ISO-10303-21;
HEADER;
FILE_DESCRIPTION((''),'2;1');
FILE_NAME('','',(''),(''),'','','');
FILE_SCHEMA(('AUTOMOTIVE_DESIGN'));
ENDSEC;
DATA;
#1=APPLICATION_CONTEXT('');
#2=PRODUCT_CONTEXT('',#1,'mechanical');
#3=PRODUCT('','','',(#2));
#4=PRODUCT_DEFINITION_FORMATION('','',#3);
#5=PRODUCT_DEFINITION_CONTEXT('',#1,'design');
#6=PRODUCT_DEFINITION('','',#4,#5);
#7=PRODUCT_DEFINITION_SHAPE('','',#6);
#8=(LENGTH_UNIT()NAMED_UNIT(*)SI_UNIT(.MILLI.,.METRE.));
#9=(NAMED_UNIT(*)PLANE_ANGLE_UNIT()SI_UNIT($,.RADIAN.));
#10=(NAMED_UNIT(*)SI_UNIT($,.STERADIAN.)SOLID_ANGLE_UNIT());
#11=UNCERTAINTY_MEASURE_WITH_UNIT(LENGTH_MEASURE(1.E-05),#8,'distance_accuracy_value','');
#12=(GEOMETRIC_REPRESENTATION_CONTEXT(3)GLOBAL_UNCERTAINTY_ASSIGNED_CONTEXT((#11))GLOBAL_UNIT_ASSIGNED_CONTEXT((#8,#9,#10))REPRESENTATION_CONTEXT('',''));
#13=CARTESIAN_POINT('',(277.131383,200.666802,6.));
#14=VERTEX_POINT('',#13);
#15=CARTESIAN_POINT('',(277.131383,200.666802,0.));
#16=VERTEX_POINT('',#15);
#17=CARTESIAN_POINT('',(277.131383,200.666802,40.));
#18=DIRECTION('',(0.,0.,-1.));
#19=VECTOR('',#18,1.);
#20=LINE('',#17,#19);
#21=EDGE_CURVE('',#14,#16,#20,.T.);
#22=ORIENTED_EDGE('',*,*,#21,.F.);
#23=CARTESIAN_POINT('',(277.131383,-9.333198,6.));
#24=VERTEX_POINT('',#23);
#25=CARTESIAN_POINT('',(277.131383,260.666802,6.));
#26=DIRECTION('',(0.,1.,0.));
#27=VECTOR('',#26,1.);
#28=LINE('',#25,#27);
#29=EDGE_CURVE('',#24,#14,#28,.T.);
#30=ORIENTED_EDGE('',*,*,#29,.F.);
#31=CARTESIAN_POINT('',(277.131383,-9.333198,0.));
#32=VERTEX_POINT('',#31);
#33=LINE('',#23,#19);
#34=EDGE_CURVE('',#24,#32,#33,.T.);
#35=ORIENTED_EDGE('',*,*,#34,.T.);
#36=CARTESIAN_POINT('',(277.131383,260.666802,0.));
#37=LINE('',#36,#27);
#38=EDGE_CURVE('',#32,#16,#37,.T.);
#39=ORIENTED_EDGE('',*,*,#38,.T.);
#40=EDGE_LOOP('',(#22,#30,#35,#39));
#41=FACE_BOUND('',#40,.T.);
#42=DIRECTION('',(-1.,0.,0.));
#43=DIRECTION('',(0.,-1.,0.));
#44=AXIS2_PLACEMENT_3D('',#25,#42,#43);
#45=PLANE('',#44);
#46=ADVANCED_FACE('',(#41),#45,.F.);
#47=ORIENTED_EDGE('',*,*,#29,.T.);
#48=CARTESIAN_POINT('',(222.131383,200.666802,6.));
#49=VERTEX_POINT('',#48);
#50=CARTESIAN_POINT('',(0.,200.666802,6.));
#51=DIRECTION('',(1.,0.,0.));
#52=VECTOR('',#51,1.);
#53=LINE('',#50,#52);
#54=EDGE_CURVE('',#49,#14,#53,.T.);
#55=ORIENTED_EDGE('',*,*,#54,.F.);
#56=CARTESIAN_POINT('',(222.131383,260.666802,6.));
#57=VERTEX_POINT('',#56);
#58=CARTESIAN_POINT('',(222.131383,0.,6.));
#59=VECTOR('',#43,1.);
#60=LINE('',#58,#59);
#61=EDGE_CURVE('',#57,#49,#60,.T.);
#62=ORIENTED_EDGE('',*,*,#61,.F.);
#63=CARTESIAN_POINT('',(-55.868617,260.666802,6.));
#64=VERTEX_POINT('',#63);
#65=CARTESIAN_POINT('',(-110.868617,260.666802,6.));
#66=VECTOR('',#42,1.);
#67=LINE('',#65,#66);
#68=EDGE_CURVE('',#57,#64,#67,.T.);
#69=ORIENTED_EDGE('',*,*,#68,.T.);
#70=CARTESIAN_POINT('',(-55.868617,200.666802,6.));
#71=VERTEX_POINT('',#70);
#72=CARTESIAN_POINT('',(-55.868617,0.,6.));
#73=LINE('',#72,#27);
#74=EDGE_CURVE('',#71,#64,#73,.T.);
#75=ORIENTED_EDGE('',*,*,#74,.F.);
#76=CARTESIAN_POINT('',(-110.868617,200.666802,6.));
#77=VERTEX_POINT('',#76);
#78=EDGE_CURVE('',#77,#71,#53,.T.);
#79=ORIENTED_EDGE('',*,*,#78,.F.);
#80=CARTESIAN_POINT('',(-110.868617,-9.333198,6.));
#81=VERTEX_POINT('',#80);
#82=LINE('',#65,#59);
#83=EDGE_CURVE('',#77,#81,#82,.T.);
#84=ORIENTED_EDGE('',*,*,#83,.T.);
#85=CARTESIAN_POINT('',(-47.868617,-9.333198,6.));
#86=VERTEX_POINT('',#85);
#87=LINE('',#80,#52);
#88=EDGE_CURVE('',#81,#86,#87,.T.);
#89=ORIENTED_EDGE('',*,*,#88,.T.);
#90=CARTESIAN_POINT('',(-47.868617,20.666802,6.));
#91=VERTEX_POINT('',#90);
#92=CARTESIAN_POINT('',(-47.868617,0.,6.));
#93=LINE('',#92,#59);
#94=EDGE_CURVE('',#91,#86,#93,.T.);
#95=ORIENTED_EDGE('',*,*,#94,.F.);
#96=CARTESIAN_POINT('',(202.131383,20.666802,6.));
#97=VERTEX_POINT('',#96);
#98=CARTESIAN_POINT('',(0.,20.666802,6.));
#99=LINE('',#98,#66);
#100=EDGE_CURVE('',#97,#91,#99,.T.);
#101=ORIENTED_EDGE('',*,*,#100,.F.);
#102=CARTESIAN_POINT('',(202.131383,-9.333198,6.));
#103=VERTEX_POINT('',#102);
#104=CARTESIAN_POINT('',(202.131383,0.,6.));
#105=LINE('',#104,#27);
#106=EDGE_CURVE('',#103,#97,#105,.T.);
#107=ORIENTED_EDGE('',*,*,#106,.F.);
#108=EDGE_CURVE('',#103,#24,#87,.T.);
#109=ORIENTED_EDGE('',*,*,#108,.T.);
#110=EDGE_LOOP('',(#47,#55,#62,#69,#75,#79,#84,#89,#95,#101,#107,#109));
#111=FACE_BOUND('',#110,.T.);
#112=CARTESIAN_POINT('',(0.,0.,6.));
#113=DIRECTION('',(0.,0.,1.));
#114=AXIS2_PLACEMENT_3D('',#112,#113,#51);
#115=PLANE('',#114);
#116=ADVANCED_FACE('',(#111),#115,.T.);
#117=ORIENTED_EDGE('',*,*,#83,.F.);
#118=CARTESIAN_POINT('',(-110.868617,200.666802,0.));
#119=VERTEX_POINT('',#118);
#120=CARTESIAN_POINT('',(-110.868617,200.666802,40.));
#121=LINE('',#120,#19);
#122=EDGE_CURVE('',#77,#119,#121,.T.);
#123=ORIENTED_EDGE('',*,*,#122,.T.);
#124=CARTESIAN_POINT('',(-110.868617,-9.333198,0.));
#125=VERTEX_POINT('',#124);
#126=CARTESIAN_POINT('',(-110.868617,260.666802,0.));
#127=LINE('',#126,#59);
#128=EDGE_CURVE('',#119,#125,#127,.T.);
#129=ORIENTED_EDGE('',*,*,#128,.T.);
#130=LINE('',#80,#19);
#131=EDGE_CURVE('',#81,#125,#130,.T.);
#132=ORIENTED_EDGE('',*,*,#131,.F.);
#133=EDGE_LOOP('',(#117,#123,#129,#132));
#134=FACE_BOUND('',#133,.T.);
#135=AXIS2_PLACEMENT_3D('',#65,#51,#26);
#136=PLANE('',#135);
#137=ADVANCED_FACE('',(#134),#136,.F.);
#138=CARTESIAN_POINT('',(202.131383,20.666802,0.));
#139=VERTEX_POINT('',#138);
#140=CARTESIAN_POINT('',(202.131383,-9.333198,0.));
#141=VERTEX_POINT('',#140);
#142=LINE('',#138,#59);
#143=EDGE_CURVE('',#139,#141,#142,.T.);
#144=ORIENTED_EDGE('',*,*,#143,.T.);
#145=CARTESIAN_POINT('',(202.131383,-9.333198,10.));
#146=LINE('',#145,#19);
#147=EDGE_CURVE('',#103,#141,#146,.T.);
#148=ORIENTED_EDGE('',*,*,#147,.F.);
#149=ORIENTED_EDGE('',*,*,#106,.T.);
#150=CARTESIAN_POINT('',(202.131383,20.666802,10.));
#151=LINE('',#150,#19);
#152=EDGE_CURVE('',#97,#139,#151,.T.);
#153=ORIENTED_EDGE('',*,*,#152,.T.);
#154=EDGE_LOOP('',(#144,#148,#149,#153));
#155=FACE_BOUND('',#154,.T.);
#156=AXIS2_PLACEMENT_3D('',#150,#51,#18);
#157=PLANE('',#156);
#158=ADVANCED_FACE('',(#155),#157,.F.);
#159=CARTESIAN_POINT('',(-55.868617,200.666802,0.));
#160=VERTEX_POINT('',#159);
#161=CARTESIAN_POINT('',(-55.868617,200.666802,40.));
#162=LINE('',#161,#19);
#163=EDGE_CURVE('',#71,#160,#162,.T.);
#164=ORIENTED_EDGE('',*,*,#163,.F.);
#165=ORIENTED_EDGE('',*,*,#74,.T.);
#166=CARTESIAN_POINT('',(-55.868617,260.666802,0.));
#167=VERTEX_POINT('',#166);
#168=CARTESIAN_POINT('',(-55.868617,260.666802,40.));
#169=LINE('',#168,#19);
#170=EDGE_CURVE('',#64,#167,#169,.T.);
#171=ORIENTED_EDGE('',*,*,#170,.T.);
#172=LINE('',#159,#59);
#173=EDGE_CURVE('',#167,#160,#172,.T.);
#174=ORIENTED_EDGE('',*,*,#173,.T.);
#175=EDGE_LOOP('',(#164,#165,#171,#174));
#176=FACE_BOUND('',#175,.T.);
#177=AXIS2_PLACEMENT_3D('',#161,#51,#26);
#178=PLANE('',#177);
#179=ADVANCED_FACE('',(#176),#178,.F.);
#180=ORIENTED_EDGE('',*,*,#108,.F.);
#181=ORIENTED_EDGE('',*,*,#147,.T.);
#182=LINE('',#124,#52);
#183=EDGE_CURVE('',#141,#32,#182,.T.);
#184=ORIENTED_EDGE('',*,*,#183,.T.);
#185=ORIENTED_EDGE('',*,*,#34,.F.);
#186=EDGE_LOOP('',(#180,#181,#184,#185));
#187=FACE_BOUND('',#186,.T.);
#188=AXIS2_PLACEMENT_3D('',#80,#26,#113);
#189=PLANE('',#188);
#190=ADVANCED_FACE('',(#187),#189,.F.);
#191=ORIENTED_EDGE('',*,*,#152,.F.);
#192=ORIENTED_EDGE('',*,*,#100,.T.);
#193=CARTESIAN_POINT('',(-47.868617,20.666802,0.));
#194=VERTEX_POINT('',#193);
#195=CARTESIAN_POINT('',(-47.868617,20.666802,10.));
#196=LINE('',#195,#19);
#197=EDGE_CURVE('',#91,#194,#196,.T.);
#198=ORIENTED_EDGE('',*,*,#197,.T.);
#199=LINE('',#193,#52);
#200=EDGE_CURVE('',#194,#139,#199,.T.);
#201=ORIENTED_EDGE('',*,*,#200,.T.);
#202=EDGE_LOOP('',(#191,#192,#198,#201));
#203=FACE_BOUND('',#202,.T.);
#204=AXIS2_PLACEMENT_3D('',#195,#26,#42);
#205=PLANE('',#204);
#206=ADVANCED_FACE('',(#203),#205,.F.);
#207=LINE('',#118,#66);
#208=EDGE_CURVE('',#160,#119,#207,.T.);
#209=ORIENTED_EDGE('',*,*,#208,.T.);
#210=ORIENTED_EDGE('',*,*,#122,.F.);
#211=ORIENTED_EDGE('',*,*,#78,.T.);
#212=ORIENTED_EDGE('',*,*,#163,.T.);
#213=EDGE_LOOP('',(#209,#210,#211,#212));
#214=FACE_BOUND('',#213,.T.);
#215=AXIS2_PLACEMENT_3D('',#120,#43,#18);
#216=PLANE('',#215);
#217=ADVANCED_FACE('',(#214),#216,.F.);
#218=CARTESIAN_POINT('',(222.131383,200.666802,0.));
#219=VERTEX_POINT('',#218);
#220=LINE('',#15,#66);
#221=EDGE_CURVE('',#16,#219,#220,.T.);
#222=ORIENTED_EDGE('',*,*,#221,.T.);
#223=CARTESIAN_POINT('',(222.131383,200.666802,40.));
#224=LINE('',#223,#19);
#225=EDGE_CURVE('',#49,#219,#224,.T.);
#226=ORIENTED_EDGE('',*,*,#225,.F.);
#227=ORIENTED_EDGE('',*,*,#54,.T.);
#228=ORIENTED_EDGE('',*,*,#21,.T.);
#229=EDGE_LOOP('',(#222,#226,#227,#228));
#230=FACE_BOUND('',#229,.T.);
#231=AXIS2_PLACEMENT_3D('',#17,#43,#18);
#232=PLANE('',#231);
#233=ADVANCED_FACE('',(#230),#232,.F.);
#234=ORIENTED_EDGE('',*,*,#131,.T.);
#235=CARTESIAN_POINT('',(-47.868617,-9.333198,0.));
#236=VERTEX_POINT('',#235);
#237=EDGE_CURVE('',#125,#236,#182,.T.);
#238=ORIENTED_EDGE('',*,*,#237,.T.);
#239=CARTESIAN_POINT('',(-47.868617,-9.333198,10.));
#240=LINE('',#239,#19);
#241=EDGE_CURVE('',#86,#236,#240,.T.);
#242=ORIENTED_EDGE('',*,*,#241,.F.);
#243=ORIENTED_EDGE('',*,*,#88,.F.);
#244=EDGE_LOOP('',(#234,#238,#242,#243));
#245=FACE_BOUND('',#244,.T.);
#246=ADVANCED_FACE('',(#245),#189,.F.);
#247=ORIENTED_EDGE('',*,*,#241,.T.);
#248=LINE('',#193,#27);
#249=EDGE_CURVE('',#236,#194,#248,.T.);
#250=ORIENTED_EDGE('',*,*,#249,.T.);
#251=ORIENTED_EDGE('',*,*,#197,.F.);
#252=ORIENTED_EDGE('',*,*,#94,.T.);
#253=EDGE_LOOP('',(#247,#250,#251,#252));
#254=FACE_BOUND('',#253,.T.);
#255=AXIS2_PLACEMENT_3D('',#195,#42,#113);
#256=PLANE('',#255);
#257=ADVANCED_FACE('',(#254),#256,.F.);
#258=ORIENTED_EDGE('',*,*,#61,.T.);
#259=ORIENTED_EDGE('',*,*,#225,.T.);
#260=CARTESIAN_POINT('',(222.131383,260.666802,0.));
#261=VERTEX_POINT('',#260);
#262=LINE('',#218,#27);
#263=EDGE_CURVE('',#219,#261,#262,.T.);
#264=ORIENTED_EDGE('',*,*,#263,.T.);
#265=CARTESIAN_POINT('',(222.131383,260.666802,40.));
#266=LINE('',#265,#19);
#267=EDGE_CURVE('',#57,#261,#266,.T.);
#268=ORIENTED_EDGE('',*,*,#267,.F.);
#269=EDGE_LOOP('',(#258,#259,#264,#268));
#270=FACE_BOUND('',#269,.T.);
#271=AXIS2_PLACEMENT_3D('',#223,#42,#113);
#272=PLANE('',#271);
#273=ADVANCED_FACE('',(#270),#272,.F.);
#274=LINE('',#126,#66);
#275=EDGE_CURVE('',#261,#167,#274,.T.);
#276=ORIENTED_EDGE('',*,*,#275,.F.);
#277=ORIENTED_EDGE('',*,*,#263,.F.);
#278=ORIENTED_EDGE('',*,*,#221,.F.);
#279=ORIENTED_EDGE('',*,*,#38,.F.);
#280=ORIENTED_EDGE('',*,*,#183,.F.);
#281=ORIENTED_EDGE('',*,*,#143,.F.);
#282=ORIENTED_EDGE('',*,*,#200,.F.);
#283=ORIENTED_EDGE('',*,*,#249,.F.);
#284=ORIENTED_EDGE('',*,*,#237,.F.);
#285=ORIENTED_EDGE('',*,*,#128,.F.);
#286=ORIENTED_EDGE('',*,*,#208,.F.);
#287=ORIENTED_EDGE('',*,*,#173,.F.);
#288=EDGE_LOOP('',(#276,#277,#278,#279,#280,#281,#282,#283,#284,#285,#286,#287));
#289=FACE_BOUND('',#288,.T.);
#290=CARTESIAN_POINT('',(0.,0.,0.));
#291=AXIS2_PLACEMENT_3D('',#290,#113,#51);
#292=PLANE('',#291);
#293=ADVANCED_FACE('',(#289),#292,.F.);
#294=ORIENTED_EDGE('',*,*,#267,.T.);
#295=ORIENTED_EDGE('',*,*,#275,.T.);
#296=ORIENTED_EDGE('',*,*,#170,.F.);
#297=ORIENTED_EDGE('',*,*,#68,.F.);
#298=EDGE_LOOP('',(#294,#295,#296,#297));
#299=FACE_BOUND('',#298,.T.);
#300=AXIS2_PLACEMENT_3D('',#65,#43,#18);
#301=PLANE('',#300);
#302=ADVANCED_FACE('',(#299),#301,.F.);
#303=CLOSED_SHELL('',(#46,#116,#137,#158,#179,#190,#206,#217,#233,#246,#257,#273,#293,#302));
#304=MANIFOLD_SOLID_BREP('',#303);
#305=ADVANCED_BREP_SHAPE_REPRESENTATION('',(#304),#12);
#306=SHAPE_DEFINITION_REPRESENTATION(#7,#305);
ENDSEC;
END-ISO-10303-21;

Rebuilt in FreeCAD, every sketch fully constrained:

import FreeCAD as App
import Part
import Sketcher

V = App.Vector


def add_polygon(sketch, points):
    """Adds a closed chain of lines whose ends are joined by coincident constraints."""
    first, n = sketch.GeometryCount, len(points)
    for a, b in zip(points, points[1:] + points[:1]):
        sketch.addGeometry(Part.LineSegment(App.Vector(*a, 0), App.Vector(*b, 0)), False)
    for i in range(n):
        sketch.addConstraint(Sketcher.Constraint("Coincident", first + i, 2, first + (i + 1) % n, 1))

doc = App.newDocument("Part")
body = doc.addObject("PartDesign::Body", "Body")

# Sketch on XY plane
sketch1 = doc.addObject("Sketcher::SketchObject", "Sketch")
body.addObject(sketch1)
sketch1.AttachmentSupport = (doc.XY_Plane, [""])
sketch1.MapMode = "FlatFace"
add_polygon(sketch1, [(-111, 261), (-111, -9), (277, -9), (277, 261)])  # lines 0-3
sketch1.addConstraint(Sketcher.Constraint("Vertical", 0))
sketch1.addConstraint(Sketcher.Constraint("Horizontal", 1))
sketch1.addConstraint(Sketcher.Constraint("Vertical", 2))
sketch1.addConstraint(Sketcher.Constraint("Horizontal", 3))
sketch1.addConstraint(Sketcher.Constraint("DistanceX", 1, 1, 1, 2, 388.0))
sketch1.addConstraint(Sketcher.Constraint("DistanceY", 0, 2, 0, 1, 270.0))
sketch1.addConstraint(Sketcher.Constraint("DistanceX", 0, 2, -1, 1, 110.868617))
sketch1.addConstraint(Sketcher.Constraint("DistanceY", 0, 2, -1, 1, 9.333198))
pad1 = doc.addObject("PartDesign::Pad", "Pad")
body.addObject(pad1)
pad1.Profile = sketch1
pad1.Length = 6

# Sketch on XY plane
sketch2 = doc.addObject("Sketcher::SketchObject", "Sketch001")
body.addObject(sketch2)
sketch2.AttachmentSupport = (doc.XY_Plane, [""])
sketch2.MapMode = "FlatFace"
add_polygon(sketch2, [(277, 261), (277, 201), (222, 201), (222, 261)])  # lines 0-3
add_polygon(sketch2, [(-56, 261), (-56, 201), (-111, 201), (-111, 261)])  # lines 4-7
sketch2.addConstraint(Sketcher.Constraint("Vertical", 0))
sketch2.addConstraint(Sketcher.Constraint("Horizontal", 1))
sketch2.addConstraint(Sketcher.Constraint("Vertical", 2))
sketch2.addConstraint(Sketcher.Constraint("Horizontal", 3))
sketch2.addConstraint(Sketcher.Constraint("Vertical", 4))
sketch2.addConstraint(Sketcher.Constraint("Horizontal", 5))
sketch2.addConstraint(Sketcher.Constraint("Vertical", 6))
sketch2.addConstraint(Sketcher.Constraint("Horizontal", 7))
sketch2.addConstraint(Sketcher.Constraint("Horizontal", 1, 2, 4, 2))
sketch2.addConstraint(Sketcher.Constraint("Horizontal", 3, 2, 6, 2))
sketch2.addConstraint(Sketcher.Constraint("Equal", 3, 5))
sketch2.addConstraint(Sketcher.Constraint("DistanceX", 1, 2, 1, 1, 55.0))
sketch2.addConstraint(Sketcher.Constraint("DistanceY", 0, 2, 0, 1, 60.0))
sketch2.addConstraint(Sketcher.Constraint("DistanceX", 4, 2, 1, 2, 278.0))
sketch2.addConstraint(Sketcher.Constraint("DistanceX", -1, 1, 0, 2, 277.131383))
sketch2.addConstraint(Sketcher.Constraint("DistanceY", -1, 1, 0, 2, 200.666802))
pocket1 = doc.addObject("PartDesign::Pocket", "Pocket")
body.addObject(pocket1)
pocket1.Profile = sketch2
pocket1.Length = 40
pocket1.Reversed = True

# Sketch on XY plane
sketch3 = doc.addObject("Sketcher::SketchObject", "Sketch002")
body.addObject(sketch3)
sketch3.AttachmentSupport = (doc.XY_Plane, [""])
sketch3.MapMode = "FlatFace"
add_polygon(sketch3, [(202, 21), (202, -9), (-48, -9), (-48, 21)])  # lines 0-3
sketch3.addConstraint(Sketcher.Constraint("Vertical", 0))
sketch3.addConstraint(Sketcher.Constraint("Horizontal", 1))
sketch3.addConstraint(Sketcher.Constraint("Vertical", 2))
sketch3.addConstraint(Sketcher.Constraint("Horizontal", 3))
sketch3.addConstraint(Sketcher.Constraint("DistanceX", 1, 2, 1, 1, 250.0))
sketch3.addConstraint(Sketcher.Constraint("DistanceY", 0, 2, 0, 1, 30.0))
sketch3.addConstraint(Sketcher.Constraint("DistanceX", -1, 1, 0, 2, 202.131383))
sketch3.addConstraint(Sketcher.Constraint("DistanceY", 0, 2, -1, 1, 9.333198))
pocket2 = doc.addObject("PartDesign::Pocket", "Pocket001")
body.addObject(pocket2)
pocket2.Profile = sketch3
pocket2.Length = 10
pocket2.Reversed = True

doc.recompute()
